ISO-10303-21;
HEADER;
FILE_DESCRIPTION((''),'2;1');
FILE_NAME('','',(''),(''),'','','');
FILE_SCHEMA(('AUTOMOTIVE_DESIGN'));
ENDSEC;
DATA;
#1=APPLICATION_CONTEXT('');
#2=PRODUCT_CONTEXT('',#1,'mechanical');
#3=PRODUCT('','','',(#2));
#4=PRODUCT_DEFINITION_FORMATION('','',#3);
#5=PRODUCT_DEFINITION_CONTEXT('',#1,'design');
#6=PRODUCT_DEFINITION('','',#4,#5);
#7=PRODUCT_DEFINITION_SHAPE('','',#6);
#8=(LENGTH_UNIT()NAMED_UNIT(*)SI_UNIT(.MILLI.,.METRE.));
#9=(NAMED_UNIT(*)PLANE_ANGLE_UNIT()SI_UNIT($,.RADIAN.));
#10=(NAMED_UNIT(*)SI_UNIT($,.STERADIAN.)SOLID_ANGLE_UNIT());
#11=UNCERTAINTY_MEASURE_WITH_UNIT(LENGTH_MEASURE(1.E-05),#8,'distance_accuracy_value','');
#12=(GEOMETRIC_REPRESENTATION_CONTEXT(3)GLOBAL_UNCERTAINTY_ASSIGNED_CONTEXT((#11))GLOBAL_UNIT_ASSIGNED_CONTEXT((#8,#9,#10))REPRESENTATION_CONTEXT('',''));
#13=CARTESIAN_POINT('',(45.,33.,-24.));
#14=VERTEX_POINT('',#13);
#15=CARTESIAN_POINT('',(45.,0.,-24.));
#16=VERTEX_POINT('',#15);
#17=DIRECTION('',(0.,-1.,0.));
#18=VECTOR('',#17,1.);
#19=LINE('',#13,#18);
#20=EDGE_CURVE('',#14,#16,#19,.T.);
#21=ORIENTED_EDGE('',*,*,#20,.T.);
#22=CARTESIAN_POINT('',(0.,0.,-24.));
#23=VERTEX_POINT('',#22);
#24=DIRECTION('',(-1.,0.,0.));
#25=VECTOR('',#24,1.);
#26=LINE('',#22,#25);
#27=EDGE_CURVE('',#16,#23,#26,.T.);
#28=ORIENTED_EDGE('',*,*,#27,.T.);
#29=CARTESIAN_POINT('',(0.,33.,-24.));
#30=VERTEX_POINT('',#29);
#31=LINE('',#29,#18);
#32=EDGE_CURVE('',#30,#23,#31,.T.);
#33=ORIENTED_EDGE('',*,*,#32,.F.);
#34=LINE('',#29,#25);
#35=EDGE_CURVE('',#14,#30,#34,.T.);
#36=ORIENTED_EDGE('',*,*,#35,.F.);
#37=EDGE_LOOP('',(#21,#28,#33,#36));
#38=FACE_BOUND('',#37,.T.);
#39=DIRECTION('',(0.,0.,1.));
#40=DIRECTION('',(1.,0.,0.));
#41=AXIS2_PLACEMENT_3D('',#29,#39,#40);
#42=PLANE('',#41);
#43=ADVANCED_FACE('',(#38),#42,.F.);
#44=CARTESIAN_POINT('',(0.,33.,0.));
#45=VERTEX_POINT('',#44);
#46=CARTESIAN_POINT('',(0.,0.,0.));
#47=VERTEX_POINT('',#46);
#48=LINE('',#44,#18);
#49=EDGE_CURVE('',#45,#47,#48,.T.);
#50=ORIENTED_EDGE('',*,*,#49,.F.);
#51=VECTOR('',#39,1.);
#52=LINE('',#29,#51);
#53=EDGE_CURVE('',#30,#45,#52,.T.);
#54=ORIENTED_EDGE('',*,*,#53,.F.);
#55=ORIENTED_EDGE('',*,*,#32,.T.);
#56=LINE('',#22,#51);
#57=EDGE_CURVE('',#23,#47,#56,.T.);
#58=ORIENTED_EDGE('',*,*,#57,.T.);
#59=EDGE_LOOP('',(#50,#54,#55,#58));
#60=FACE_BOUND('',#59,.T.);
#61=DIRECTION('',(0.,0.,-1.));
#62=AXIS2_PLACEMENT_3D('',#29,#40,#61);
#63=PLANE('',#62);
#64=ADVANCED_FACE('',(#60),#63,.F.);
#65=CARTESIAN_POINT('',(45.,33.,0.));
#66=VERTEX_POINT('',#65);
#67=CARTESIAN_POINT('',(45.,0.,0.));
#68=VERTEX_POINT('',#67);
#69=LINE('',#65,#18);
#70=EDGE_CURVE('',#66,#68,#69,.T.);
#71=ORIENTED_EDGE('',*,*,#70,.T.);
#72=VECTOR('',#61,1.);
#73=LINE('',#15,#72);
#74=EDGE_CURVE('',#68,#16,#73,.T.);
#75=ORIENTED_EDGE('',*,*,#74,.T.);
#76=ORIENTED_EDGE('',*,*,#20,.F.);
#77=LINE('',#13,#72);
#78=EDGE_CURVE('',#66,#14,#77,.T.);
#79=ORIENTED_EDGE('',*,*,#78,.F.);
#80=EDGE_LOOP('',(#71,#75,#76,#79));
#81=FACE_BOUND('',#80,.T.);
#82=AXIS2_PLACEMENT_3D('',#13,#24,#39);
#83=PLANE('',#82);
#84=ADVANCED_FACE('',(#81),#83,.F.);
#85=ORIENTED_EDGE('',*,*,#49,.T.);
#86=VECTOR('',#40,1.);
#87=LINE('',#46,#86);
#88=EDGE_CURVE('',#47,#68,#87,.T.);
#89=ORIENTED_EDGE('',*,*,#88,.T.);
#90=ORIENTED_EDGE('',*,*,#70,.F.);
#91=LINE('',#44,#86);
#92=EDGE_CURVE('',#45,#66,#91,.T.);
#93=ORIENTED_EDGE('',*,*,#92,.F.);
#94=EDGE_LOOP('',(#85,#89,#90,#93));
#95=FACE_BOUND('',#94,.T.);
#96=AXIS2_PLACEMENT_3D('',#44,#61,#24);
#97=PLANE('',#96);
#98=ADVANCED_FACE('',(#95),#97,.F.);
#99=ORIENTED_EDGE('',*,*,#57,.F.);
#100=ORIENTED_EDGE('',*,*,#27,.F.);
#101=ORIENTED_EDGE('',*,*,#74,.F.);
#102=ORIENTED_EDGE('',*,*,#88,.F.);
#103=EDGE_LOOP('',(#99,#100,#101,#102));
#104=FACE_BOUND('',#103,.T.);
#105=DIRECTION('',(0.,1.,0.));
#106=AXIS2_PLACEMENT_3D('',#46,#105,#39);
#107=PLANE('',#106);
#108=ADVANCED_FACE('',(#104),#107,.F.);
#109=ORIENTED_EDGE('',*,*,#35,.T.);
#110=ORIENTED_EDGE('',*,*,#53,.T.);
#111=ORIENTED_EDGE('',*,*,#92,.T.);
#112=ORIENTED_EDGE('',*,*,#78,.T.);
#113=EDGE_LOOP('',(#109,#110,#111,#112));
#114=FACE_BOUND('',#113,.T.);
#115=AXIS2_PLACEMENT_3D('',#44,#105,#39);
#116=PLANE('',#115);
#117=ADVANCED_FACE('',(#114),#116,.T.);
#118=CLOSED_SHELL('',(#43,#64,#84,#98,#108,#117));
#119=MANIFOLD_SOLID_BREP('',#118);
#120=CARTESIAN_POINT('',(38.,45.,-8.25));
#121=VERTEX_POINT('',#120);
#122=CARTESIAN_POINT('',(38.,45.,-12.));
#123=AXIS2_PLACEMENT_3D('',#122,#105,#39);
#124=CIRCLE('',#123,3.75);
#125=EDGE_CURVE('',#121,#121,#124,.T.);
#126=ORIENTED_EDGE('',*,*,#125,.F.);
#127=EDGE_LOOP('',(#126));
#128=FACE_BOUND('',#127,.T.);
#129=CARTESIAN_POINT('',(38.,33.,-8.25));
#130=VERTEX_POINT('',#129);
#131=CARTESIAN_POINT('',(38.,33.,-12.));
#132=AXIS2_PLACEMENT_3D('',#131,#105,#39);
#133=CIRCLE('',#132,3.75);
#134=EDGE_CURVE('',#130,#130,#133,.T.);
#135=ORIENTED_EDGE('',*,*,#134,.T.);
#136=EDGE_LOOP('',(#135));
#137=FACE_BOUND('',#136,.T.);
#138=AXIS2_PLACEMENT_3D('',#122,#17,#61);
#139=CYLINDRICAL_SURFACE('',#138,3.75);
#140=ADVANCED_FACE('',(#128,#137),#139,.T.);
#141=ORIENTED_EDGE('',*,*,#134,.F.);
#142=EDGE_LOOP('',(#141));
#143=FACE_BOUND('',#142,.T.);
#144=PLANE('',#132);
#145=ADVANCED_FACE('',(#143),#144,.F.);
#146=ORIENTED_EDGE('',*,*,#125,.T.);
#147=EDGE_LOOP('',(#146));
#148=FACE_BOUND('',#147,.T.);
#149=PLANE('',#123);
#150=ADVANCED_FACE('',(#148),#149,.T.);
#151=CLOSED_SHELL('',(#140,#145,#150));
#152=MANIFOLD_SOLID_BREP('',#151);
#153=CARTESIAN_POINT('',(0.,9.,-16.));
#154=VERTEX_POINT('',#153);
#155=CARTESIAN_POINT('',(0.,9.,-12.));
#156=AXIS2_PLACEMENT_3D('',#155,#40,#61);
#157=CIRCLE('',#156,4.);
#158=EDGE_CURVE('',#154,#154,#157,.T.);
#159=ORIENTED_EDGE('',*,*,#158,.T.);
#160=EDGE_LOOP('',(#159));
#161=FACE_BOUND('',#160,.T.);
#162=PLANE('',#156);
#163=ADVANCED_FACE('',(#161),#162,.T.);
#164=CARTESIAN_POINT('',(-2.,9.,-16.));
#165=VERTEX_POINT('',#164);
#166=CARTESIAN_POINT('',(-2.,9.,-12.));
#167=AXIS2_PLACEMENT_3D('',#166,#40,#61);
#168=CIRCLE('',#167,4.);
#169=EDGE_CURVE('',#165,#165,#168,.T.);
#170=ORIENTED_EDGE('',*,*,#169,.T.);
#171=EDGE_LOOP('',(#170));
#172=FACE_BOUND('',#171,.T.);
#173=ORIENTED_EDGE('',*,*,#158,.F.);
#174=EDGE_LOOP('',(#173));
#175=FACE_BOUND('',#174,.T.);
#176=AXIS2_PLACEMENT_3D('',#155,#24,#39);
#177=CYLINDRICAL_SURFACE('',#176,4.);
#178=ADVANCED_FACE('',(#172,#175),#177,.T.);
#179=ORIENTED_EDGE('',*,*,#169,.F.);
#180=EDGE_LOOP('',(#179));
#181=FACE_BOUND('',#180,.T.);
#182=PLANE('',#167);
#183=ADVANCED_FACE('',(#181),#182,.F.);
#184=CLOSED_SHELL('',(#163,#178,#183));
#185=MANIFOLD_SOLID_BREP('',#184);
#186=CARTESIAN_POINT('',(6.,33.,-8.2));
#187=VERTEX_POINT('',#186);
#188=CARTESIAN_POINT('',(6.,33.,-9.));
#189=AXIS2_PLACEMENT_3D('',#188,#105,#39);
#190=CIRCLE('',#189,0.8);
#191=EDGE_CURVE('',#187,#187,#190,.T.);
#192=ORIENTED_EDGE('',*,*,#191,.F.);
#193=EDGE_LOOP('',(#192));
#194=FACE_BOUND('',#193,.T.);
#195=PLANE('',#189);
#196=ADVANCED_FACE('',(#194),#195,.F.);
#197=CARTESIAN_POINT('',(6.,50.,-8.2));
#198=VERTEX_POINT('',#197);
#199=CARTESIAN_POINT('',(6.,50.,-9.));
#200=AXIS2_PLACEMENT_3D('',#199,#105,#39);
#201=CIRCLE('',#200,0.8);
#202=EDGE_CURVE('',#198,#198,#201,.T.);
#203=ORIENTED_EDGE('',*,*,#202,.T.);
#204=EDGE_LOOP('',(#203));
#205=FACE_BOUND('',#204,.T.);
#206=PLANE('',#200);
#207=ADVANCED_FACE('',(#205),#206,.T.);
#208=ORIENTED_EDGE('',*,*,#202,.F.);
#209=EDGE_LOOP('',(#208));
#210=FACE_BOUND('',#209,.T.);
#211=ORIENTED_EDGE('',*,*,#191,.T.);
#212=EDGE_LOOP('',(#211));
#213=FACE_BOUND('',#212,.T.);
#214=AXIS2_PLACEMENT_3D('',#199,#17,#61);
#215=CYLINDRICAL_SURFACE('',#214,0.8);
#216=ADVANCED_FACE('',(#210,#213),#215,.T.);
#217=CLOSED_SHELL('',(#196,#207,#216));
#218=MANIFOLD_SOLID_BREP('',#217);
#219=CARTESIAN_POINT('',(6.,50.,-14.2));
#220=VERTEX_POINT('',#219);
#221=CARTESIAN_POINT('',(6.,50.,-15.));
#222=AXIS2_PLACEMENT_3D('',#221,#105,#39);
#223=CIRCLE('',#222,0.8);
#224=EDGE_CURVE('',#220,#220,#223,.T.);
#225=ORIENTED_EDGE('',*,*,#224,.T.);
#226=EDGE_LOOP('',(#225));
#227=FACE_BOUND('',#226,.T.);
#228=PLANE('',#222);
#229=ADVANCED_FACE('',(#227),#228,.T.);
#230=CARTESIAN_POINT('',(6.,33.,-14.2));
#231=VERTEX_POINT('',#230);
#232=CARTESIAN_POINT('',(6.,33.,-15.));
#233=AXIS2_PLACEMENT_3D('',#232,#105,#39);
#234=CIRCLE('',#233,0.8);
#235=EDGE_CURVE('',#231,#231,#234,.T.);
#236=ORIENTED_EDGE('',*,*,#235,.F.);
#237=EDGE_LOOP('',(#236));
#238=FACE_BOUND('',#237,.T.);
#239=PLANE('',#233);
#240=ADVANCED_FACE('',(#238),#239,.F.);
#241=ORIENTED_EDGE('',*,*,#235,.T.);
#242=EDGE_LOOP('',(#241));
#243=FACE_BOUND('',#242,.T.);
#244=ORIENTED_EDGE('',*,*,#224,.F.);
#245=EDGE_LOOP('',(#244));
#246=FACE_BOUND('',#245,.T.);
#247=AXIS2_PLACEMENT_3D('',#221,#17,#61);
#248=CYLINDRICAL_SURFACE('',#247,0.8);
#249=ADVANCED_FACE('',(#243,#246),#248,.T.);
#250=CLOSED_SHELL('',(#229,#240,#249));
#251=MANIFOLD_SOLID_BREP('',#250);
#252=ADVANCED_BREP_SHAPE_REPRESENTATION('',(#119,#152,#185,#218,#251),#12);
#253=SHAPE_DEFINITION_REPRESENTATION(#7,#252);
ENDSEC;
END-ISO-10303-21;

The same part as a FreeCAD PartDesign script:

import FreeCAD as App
import Part
import Sketcher
from FreeCAD import Vector


def add_polygon(sketch, points):
    """Adds a closed chain of lines whose ends are joined by coincident constraints."""
    first, n = sketch.GeometryCount, len(points)
    for a, b in zip(points, points[1:] + points[:1]):
        sketch.addGeometry(Part.LineSegment(App.Vector(*a, 0), App.Vector(*b, 0)), False)
    for i in range(n):
        sketch.addConstraint(Sketcher.Constraint("Coincident", first + i, 2, first + (i + 1) % n, 1))

doc = App.newDocument("Part")
params = doc.addObject("Spreadsheet::Sheet", "Params")
for row, (alias, value) in enumerate([
    ("sketch1_width", "45 mm"),
    ("sketch1_height", "24 mm"),
    ("pad1_length", "33 mm"),
    ("sketch2_diameter", "7.5 mm"),
    ("pad2_length", "12 mm"),
    ("sketch3_diameter", "8 mm"),
    ("pad3_length", "2 mm"),
    ("sketch4_diameter", "1.6 mm"),
    ("pad4_length", "17 mm"),
    ("sketch5_diameter", "1.6 mm"),
    ("pad5_length", "17 mm"),
], start=1):
    params.set(f"A{row}", alias)
    params.set(f"B{row}", "=" + value)
    params.setAlias(f"B{row}", alias)

body = doc.addObject("PartDesign::Body", "Body")

sketch1 = body.newObject("Sketcher::SketchObject", "Sketch")
sketch1.AttachmentSupport = (doc.getObject("XZ_Plane"), [""])
sketch1.MapMode = "FlatFace"
add_polygon(sketch1, [(0, -24), (0, 0), (45, 0), (45, -24)])
sketch1.addConstraint([
    Sketcher.Constraint("Vertical", 0),
    Sketcher.Constraint("Horizontal", 1),
    Sketcher.Constraint("Vertical", 2),
    Sketcher.Constraint("Horizontal", 3),
    Sketcher.Constraint("Coincident", 0, 2, -1, 1),
    Sketcher.Constraint("DistanceX", 1, 1, 1, 2, 45.0),
    Sketcher.Constraint("DistanceY", 0, 1, 0, 2, 24.0),
])
sketch1.setExpression("Constraints[9]", "Params.sketch1_width")
sketch1.setExpression("Constraints[10]", "Params.sketch1_height")
pad1 = body.newObject("PartDesign::Pad", "Pad")
pad1.Profile = sketch1
pad1.setExpression("Length", "Params.pad1_length")
pad1.Reversed = True
body2 = doc.addObject("PartDesign::Body", "Body001")

sketch2 = body2.newObject("Sketcher::SketchObject", "Sketch001")
sketch2.AttachmentSupport = (doc.getObject("XZ_Plane001"), [""])
sketch2.MapMode = "FlatFace"
sketch2.AttachmentOffset = App.Placement(Vector(0, 0, -33), App.Rotation())
sketch2.addGeometry(Part.Circle(Vector(38, -12, 0), Vector(0, 0, 1), 3.8), False)
sketch2.addConstraint([
    Sketcher.Constraint("Diameter", 0, 7.5),
    Sketcher.Constraint("DistanceX", -1, 1, 0, 3, 38.0),
    Sketcher.Constraint("DistanceY", 0, 3, -1, 1, 12.0),
])
sketch2.setExpression("Constraints[0]", "Params.sketch2_diameter")
pad2 = body2.newObject("PartDesign::Pad", "Pad001")
pad2.Profile = sketch2
pad2.setExpression("Length", "Params.pad2_length")
pad2.Reversed = True
body3 = doc.addObject("PartDesign::Body", "Body002")

sketch3 = body3.newObject("Sketcher::SketchObject", "Sketch002")
sketch3.AttachmentSupport = (doc.getObject("YZ_Plane002"), [""])
sketch3.MapMode = "FlatFace"
sketch3.AttachmentOffset = App.Placement(Vector(0, 0, -2), App.Rotation())
sketch3.addGeometry(Part.Circle(Vector(9, -12, 0), Vector(0, 0, 1), 4), False)
sketch3.addConstraint([
    Sketcher.Constraint("Diameter", 0, 8.0),
    Sketcher.Constraint("DistanceX", -1, 1, 0, 3, 9.0),
    Sketcher.Constraint("DistanceY", 0, 3, -1, 1, 12.0),
])
sketch3.setExpression("Constraints[0]", "Params.sketch3_diameter")
pad3 = body3.newObject("PartDesign::Pad", "Pad002")
pad3.Profile = sketch3
pad3.setExpression("Length", "Params.pad3_length")
body4 = doc.addObject("PartDesign::Body", "Body003")

sketch4 = body4.newObject("Sketcher::SketchObject", "Sketch003")
sketch4.AttachmentSupport = (doc.getObject("XZ_Plane003"), [""])
sketch4.MapMode = "FlatFace"
sketch4.AttachmentOffset = App.Placement(Vector(0, 0, -33), App.Rotation())
sketch4.addGeometry(Part.Circle(Vector(6, -9, 0), Vector(0, 0, 1), 0.8), False)
sketch4.addConstraint([
    Sketcher.Constraint("Diameter", 0, 1.6),
    Sketcher.Constraint("DistanceX", -1, 1, 0, 3, 6.0),
    Sketcher.Constraint("DistanceY", 0, 3, -1, 1, 9.0),
])
sketch4.setExpression("Constraints[0]", "Params.sketch4_diameter")
pad4 = body4.newObject("PartDesign::Pad", "Pad003")
pad4.Profile = sketch4
pad4.setExpression("Length", "Params.pad4_length")
pad4.Reversed = True
body5 = doc.addObject("PartDesign::Body", "Body004")

sketch5 = body5.newObject("Sketcher::SketchObject", "Sketch004")
sketch5.AttachmentSupport = (doc.getObject("XZ_Plane004"), [""])
sketch5.MapMode = "FlatFace"
sketch5.AttachmentOffset = App.Placement(Vector(0, 0, -33), App.Rotation())
sketch5.addGeometry(Part.Circle(Vector(6, -15, 0), Vector(0, 0, 1), 0.8), False)
sketch5.addConstraint([
    Sketcher.Constraint("Diameter", 0, 1.6),
    Sketcher.Constraint("DistanceX", -1, 1, 0, 3, 6.0),
    Sketcher.Constraint("DistanceY", 0, 3, -1, 1, 15.0),
])
sketch5.setExpression("Constraints[0]", "Params.sketch5_diameter")
pad5 = body5.newObject("PartDesign::Pad", "Pad004")
pad5.Profile = sketch5
pad5.setExpression("Length", "Params.pad5_length")
pad5.Reversed = True

doc.recompute()
